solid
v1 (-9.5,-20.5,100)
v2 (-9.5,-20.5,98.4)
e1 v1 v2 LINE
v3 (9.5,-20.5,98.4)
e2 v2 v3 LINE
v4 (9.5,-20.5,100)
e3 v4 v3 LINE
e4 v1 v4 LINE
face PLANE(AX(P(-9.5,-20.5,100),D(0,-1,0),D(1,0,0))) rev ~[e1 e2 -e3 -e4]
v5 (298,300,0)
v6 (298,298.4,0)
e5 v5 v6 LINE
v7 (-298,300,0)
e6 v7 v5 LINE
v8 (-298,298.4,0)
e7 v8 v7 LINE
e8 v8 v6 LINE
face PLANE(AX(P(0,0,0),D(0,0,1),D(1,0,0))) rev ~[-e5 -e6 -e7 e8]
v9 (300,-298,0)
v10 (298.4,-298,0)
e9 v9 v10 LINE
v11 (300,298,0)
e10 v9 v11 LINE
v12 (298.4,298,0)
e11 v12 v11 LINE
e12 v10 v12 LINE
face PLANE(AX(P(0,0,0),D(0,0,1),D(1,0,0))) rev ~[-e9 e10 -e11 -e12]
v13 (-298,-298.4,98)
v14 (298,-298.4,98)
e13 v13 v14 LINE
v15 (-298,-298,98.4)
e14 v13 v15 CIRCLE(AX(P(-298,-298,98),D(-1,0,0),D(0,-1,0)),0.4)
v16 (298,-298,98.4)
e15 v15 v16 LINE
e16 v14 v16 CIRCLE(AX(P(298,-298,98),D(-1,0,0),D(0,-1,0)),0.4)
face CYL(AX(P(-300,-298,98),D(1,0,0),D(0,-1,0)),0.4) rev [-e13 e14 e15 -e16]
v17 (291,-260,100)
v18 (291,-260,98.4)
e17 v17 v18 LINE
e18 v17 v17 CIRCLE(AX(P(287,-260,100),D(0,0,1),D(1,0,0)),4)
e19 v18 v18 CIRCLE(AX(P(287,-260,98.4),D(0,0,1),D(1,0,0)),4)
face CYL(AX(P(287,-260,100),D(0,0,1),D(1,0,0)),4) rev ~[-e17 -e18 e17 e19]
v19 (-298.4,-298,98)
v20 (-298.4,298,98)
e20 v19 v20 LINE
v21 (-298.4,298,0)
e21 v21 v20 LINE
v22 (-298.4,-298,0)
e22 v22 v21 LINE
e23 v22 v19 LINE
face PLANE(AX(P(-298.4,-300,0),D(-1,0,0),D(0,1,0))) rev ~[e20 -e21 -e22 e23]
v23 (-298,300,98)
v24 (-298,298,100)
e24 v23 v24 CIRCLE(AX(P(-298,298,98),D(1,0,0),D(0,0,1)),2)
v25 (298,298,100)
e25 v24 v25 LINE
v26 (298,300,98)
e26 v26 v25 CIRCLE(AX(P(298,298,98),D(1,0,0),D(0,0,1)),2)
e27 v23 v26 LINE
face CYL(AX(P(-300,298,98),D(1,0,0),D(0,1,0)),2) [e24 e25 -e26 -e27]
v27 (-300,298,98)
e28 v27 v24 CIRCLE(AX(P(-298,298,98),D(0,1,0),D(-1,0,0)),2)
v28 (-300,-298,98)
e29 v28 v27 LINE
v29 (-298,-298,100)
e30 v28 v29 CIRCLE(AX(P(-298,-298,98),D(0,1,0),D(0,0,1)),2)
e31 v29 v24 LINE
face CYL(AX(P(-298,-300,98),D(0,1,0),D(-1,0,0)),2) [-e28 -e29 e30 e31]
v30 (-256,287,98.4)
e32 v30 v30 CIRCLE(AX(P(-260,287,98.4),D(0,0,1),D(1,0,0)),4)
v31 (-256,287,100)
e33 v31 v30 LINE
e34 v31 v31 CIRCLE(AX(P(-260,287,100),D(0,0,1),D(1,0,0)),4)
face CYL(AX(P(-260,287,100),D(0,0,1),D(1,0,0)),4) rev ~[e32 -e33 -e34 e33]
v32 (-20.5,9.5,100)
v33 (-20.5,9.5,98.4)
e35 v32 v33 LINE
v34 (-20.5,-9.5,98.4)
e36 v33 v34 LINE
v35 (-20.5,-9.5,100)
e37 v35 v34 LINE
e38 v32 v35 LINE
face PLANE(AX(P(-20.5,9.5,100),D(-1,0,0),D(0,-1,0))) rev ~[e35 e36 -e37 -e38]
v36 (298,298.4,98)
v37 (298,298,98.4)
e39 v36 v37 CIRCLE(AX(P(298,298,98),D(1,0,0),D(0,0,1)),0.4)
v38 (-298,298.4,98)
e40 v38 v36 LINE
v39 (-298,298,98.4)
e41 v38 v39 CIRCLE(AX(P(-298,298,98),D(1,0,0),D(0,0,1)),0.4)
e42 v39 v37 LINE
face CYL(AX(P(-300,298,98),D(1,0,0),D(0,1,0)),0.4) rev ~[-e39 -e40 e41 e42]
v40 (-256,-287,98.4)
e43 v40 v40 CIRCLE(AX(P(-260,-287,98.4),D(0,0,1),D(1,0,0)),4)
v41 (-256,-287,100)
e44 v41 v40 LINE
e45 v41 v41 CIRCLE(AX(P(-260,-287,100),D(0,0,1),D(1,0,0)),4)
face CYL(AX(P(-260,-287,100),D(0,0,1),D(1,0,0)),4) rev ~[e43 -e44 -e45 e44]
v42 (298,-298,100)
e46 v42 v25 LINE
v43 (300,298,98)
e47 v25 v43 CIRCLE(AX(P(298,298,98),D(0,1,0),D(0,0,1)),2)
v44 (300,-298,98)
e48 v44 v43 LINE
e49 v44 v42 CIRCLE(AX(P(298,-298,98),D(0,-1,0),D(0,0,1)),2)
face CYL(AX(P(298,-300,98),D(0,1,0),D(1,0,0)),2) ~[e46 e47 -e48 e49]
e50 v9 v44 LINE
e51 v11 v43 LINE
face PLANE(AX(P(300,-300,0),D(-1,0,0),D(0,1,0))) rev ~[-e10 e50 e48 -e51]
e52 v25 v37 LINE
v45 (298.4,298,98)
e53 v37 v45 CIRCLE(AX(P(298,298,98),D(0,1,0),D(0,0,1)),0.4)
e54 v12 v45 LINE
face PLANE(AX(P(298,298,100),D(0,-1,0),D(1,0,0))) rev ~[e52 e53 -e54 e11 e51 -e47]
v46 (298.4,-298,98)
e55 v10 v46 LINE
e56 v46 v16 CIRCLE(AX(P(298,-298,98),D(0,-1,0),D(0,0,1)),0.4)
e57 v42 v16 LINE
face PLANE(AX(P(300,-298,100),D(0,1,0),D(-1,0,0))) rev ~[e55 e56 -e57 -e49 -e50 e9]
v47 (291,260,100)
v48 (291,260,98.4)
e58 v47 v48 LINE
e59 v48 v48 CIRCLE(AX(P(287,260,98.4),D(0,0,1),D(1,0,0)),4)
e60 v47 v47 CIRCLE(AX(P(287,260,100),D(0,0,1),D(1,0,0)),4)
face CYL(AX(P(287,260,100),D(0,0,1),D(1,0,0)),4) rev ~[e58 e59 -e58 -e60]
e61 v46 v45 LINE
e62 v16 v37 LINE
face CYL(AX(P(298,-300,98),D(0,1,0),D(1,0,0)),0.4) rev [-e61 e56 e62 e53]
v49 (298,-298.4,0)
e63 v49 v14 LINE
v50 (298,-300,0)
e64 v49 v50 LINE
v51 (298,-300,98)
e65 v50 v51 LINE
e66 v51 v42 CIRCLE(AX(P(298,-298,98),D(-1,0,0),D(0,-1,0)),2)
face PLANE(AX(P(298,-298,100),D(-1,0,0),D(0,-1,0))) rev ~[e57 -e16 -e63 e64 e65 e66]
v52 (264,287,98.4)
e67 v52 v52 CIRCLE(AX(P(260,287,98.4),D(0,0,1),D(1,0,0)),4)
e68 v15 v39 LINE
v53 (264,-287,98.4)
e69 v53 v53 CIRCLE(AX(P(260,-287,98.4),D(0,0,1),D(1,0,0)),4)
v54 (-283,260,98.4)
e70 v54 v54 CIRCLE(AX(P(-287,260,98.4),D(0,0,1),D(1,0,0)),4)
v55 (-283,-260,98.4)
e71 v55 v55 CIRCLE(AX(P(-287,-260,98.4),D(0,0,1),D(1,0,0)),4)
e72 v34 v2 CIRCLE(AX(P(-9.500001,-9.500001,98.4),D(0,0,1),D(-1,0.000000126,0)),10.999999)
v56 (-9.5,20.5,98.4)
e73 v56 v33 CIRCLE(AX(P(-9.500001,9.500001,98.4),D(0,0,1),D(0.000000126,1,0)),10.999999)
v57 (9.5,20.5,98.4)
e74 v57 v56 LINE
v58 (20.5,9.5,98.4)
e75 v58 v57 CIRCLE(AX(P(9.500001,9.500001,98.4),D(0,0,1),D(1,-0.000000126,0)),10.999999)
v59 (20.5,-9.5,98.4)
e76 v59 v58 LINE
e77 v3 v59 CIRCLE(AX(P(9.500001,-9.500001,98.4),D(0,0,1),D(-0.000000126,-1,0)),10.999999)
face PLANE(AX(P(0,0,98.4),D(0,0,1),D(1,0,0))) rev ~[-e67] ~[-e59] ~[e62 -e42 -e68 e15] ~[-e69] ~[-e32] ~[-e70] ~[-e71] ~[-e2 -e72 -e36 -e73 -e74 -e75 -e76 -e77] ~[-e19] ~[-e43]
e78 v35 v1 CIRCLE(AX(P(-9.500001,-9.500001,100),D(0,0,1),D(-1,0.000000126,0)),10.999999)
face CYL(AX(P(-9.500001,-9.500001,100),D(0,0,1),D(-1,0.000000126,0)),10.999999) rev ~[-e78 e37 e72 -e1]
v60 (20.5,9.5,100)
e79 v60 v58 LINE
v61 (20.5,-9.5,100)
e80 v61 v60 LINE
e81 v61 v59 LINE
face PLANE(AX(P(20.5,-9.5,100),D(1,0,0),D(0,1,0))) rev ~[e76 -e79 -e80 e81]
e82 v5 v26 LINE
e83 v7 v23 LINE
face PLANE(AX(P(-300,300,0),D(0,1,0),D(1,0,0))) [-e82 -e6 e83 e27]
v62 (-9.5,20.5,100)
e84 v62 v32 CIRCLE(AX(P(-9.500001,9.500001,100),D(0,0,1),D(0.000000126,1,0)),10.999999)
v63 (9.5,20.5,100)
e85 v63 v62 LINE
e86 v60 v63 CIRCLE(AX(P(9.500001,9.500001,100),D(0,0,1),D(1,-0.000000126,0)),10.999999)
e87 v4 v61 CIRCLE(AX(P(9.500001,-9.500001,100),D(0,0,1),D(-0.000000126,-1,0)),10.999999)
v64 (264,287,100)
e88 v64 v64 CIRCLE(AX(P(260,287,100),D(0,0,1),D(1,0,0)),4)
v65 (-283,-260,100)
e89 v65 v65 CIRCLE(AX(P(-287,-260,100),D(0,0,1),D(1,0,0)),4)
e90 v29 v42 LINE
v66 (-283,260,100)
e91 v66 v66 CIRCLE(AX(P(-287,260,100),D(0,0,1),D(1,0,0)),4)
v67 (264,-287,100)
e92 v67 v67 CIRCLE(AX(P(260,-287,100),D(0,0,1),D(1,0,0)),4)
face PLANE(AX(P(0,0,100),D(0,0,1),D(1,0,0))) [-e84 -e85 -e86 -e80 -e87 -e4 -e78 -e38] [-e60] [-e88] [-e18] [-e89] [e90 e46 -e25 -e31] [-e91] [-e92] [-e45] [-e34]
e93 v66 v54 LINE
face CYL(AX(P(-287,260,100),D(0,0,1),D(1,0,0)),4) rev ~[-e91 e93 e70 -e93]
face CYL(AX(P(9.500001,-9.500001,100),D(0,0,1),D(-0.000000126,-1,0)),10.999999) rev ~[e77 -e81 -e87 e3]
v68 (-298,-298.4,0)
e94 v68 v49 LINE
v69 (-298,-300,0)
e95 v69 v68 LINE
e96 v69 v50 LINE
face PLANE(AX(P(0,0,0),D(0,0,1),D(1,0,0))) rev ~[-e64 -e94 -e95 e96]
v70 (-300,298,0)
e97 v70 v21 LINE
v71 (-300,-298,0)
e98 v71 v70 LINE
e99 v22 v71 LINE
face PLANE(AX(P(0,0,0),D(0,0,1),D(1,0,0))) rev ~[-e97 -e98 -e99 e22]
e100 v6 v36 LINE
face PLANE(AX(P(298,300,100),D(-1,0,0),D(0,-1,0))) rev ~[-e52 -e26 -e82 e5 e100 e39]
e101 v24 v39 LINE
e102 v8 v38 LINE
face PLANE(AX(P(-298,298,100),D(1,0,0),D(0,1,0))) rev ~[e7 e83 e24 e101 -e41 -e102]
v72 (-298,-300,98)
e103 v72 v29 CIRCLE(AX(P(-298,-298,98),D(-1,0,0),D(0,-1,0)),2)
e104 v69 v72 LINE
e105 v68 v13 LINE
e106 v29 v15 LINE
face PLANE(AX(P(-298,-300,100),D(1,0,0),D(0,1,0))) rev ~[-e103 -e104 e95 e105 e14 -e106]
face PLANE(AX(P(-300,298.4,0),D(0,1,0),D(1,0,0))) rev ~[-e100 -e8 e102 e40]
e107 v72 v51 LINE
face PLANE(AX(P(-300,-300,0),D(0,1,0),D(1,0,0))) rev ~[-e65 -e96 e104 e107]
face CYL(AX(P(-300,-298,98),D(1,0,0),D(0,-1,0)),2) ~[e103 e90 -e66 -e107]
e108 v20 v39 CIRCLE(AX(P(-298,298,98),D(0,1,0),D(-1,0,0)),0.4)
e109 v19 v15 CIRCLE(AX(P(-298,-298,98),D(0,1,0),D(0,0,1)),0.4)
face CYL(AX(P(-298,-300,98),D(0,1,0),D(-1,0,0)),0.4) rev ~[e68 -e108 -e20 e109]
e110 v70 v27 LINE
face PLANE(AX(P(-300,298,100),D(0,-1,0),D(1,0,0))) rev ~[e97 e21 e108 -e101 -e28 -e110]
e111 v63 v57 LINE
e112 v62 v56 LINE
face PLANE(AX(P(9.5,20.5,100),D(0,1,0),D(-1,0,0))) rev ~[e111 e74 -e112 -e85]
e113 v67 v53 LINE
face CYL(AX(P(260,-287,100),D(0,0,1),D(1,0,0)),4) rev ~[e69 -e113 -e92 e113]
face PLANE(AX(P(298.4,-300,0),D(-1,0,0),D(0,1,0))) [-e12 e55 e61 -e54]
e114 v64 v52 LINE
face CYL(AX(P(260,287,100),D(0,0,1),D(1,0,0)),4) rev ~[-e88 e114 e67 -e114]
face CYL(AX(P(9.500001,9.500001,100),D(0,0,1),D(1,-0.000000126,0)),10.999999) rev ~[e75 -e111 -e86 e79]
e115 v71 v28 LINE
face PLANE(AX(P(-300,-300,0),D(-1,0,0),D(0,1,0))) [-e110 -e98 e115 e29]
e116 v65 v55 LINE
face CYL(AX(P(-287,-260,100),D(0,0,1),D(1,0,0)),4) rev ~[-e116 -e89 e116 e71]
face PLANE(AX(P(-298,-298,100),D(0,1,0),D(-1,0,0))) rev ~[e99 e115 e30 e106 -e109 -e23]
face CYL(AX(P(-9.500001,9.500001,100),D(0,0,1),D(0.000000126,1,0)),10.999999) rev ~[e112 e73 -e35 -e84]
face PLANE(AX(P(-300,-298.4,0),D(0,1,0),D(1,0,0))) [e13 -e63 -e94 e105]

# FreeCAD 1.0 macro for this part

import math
import FreeCAD as App
import Part
import Sketcher


def edges_at(feature, points):
    """Names of the edges that pass closest to the given points."""
    edges = feature.Shape.Edges
    near = lambda p: min(range(len(edges)), key=lambda i: edges[i].distToShape(Part.Vertex(*p))[0])
    return sorted({f"Edge{near(p) + 1}" for p in points})


def faces_at(feature, points):
    """Names of the faces that lie closest to the given points."""
    faces = feature.Shape.Faces
    near = lambda p: min(range(len(faces)), key=lambda i: faces[i].distToShape(Part.Vertex(*p))[0])
    return sorted({f"Face{near(p) + 1}" for p in points})


def add_polygon(sketch, points):
    """Adds a closed chain of lines whose ends are joined by coincident constraints."""
    first, n = sketch.GeometryCount, len(points)
    for a, b in zip(points, points[1:] + points[:1]):
        sketch.addGeometry(Part.LineSegment(App.Vector(*a, 0), App.Vector(*b, 0)), False)
    for i in range(n):
        sketch.addConstraint(Sketcher.Constraint("Coincident", first + i, 2, first + (i + 1) % n, 1))

doc = App.newDocument("Part")
params = doc.addObject("Spreadsheet::Sheet", "Params")
for row, (alias, value) in enumerate([
    ("sketch1_width", "600 mm"),
    ("pad1_length", "100 mm"),
    ("fillet_radius", "2 mm"),
    ("thickness_wall", "1.6 mm"),
    ("sketch2_radius", "1.999999 mm"),
    ("sketch3_radius", "10.999999 mm"),
    ("sketch3_width", "19 mm"),
    ("sketch4_diameter", "8 mm"),
], start=1):
    params.set(f"A{row}", alias)
    params.set(f"B{row}", "=" + value)
    params.setAlias(f"B{row}", alias)

body = doc.addObject("PartDesign::Body", "Body")

# Sketch on XY plane
sketch1 = body.newObject("Sketcher::SketchObject", "Sketch")
sketch1.AttachmentSupport = (doc.getObject("XY_Plane"), [""])
sketch1.MapMode = "FlatFace"
add_polygon(sketch1, [(-300, 300), (-300, -300), (300, -300), (300, 300)])  # lines 0-3
sketch1.addConstraint([
    Sketcher.Constraint("Vertical", 0),
    Sketcher.Constraint("Horizontal", 1),
    Sketcher.Constraint("Vertical", 2),
    Sketcher.Constraint("Horizontal", 3),
    Sketcher.Constraint("Symmetric", 0, 2, 2, 2, -1, 1),
    Sketcher.Constraint("Equal", 3, 0),
    Sketcher.Constraint("DistanceX", 1, 1, 1, 2, 600.0),
])
sketch1.setExpression("Constraints[10]", "Params.sketch1_width")
pad1 = body.newObject("PartDesign::Pad", "Pad")
pad1.Profile = sketch1
pad1.setExpression("Length", "Params.pad1_length")
doc.recompute()

fillet = body.newObject("PartDesign::Fillet", "Fillet")
fillet.Base = (pad1, edges_at(pad1, [
    (0, -300, 100),
    (-300, -300, 50),
    (-300, 0, 100),
    (300, -300, 50),
    (-300, 300, 50),
    (300, 0, 100),
    (0, 300, 100),
    (300, 300, 50),
]))
fillet.setExpression("Radius", "Params.fillet_radius")
doc.recompute()

thickness = body.newObject("PartDesign::Thickness", "Thickness")
thickness.Base = (fillet, faces_at(fillet, [(0, 0, 0)]))
thickness.setExpression("Value", "Params.thickness_wall")
thickness.Reversed = True
thickness.Join = "Arc"

# Sketch on XY plane
sketch2 = body.newObject("Sketcher::SketchObject", "Sketch001")
sketch2.AttachmentSupport = (doc.getObject("XY_Plane"), [""])
sketch2.MapMode = "FlatFace"
sketch2.AttachmentOffset = App.Placement(App.Vector(0, 0, 100), App.Rotation())
sketch2.addGeometry([
    Part.LineSegment(App.Vector(298, 300, 0), App.Vector(298, 298, 0)),  # 0
    Part.LineSegment(App.Vector(298, 298, 0), App.Vector(300, 298, 0)),  # 1
    Part.ArcOfCircle(Part.Circle(App.Vector(298, 298, 0), App.Vector(0, 0, 1), 2), math.radians(0), math.radians(90)),  # 2
    Part.LineSegment(App.Vector(298, -298, 0), App.Vector(298, -300, 0)),  # 3
    Part.ArcOfCircle(Part.Circle(App.Vector(298, -298, 0), App.Vector(0, 0, 1), 2), math.radians(-90), math.radians(0)),  # 4
    Part.LineSegment(App.Vector(300, -298, 0), App.Vector(298, -298, 0)),  # 5
    Part.LineSegment(App.Vector(-300, 298, 0), App.Vector(-298, 298, 0)),  # 6
    Part.LineSegment(App.Vector(-298, 298, 0), App.Vector(-298, 300, 0)),  # 7
    Part.ArcOfCircle(Part.Circle(App.Vector(-298, 298, 0), App.Vector(0, 0, 1), 2), math.radians(90), math.radians(180)),  # 8
    Part.ArcOfCircle(Part.Circle(App.Vector(-298, -298, 0), App.Vector(0, 0, 1), 2), math.radians(180), math.radians(270)),  # 9
    Part.LineSegment(App.Vector(-298, -300, 0), App.Vector(-298, -298, 0)),  # 10
    Part.LineSegment(App.Vector(-298, -298, 0), App.Vector(-300, -298, 0)),  # 11
], False)
sketch2.addConstraint([
    Sketcher.Constraint("Coincident", 0, 2, 1, 1),
    Sketcher.Constraint("Coincident", 1, 2, 2, 1),
    Sketcher.Constraint("Coincident", 2, 2, 0, 1),
    Sketcher.Constraint("Coincident", 3, 2, 4, 1),
    Sketcher.Constraint("Coincident", 4, 2, 5, 1),
    Sketcher.Constraint("Coincident", 5, 2, 3, 1),
    Sketcher.Constraint("Coincident", 6, 2, 7, 1),
    Sketcher.Constraint("Coincident", 7, 2, 8, 1),
    Sketcher.Constraint("Coincident", 8, 2, 6, 1),
    Sketcher.Constraint("Coincident", 9, 2, 10, 1),
    Sketcher.Constraint("Coincident", 10, 2, 11, 1),
    Sketcher.Constraint("Coincident", 11, 2, 9, 1),
    Sketcher.Constraint("Vertical", 0),
    Sketcher.Constraint("Horizontal", 1),
    Sketcher.Constraint("Vertical", 3),
    Sketcher.Constraint("Horizontal", 5),
    Sketcher.Constraint("Horizontal", 6),
    Sketcher.Constraint("Vertical", 7),
    Sketcher.Constraint("Vertical", 10),
    Sketcher.Constraint("Horizontal", 11),
    Sketcher.Constraint("Coincident", 0, 2, 2, 3),
    Sketcher.Constraint("Coincident", 5, 2, 4, 3),
    Sketcher.Constraint("Coincident", 6, 2, 8, 3),
    Sketcher.Constraint("Coincident", 10, 2, 9, 3),
    Sketcher.Constraint("Equal", 2, 4),
    Sketcher.Constraint("Equal", 4, 8),
    Sketcher.Constraint("Equal", 8, 9),
    Sketcher.Constraint("Symmetric", 4, 3, 8, 3, -1, 1),
    Sketcher.Constraint("Symmetric", 2, 3, 9, 3, -1, 1),
    Sketcher.Constraint("Symmetric", 2, 3, 8, 3, -2),
    Sketcher.Constraint("Radius", 2, 1.999999),
    Sketcher.Constraint("DistanceX", -1, 1, 2, 3, 298.000001),
    Sketcher.Constraint("DistanceY", -1, 1, 2, 3, 298.000001),
])
sketch2.setExpression("Constraints[30]", "Params.sketch2_radius")
pocket1 = body.newObject("PartDesign::Pocket", "Pocket")
pocket1.Profile = sketch2
pocket1.Type = "ThroughAll"

# Sketch on XY plane
sketch3 = body.newObject("Sketcher::SketchObject", "Sketch002")
sketch3.AttachmentSupport = (doc.getObject("XY_Plane"), [""])
sketch3.MapMode = "FlatFace"
sketch3.AttachmentOffset = App.Placement(App.Vector(0, 0, 100), App.Rotation())
sketch3.addGeometry([
    Part.ArcOfCircle(Part.Circle(App.Vector(-10, -10, 0), App.Vector(0, 0, 1), 11), math.radians(180), math.radians(270)),  # 0
    Part.LineSegment(App.Vector(-10, -20, 0), App.Vector(10, -20, 0)),  # 1
    Part.ArcOfCircle(Part.Circle(App.Vector(10, -10, 0), App.Vector(0, 0, 1), 11), math.radians(-90), math.radians(0)),  # 2
    Part.LineSegment(App.Vector(20, -10, 0), App.Vector(20, 10, 0)),  # 3
    Part.ArcOfCircle(Part.Circle(App.Vector(10, 10, 0), App.Vector(0, 0, 1), 11), math.radians(0), math.radians(90)),  # 4
    Part.LineSegment(App.Vector(10, 20, 0), App.Vector(-10, 20, 0)),  # 5
    Part.ArcOfCircle(Part.Circle(App.Vector(-10, 10, 0), App.Vector(0, 0, 1), 11), math.radians(90), math.radians(180)),  # 6
    Part.LineSegment(App.Vector(-20, 10, 0), App.Vector(-20, -10, 0)),  # 7
], False)
sketch3.addConstraint([
    Sketcher.Constraint("Tangent", 0, 2, 1, 1),
    Sketcher.Constraint("Tangent", 1, 2, 2, 1),
    Sketcher.Constraint("Tangent", 2, 2, 3, 1),
    Sketcher.Constraint("Tangent", 3, 2, 4, 1),
    Sketcher.Constraint("Tangent", 4, 2, 5, 1),
    Sketcher.Constraint("Tangent", 5, 2, 6, 1),
    Sketcher.Constraint("Tangent", 6, 2, 7, 1),
    Sketcher.Constraint("Tangent", 7, 2, 0, 1),
    Sketcher.Constraint("Horizontal", 1),
    Sketcher.Constraint("Vertical", 3),
    Sketcher.Constraint("Horizontal", 5),
    Sketcher.Constraint("Vertical", 7),
    Sketcher.Constraint("Equal", 0, 2),
    Sketcher.Constraint("Equal", 2, 4),
    Sketcher.Constraint("Equal", 4, 6),
    Sketcher.Constraint("Symmetric", 0, 3, 4, 3, -1, 1),
    Sketcher.Constraint("Equal", 5, 3),
    Sketcher.Constraint("Radius", 0, 10.999999),
    Sketcher.Constraint("DistanceX", 1, 1, 1, 2, 19.0),
])
sketch3.setExpression("Constraints[17]", "Params.sketch3_radius")
sketch3.setExpression("Constraints[18]", "Params.sketch3_width")
pocket2 = body.newObject("PartDesign::Pocket", "Pocket001")
pocket2.Profile = sketch3
pocket2.Type = "ThroughAll"

# Sketch on XY plane
sketch4 = body.newObject("Sketcher::SketchObject", "Sketch003")
sketch4.AttachmentSupport = (doc.getObject("XY_Plane"), [""])
sketch4.MapMode = "FlatFace"
sketch4.AttachmentOffset = App.Placement(App.Vector(0, 0, 100), App.Rotation())
sketch4.addGeometry([
    Part.Circle(App.Vector(260, 287, 0), App.Vector(0, 0, 1), 4),  # 0
    Part.Circle(App.Vector(-260, 287, 0), App.Vector(0, 0, 1), 4),  # 1
    Part.Circle(App.Vector(-287, -260, 0), App.Vector(0, 0, 1), 4),  # 2
    Part.Circle(App.Vector(-287, 260, 0), App.Vector(0, 0, 1), 4),  # 3
    Part.Circle(App.Vector(260, -287, 0), App.Vector(0, 0, 1), 4),  # 4
    Part.Circle(App.Vector(-260, -287, 0), App.Vector(0, 0, 1), 4),  # 5
    Part.Circle(App.Vector(287, 260, 0), App.Vector(0, 0, 1), 4),  # 6
    Part.Circle(App.Vector(287, -260, 0), App.Vector(0, 0, 1), 4),  # 7
], False)
sketch4.addConstraint([
    Sketcher.Constraint("Equal", 0, 1),
    Sketcher.Constraint("Equal", 1, 2),
    Sketcher.Constraint("Equal", 2, 3),
    Sketcher.Constraint("Equal", 3, 4),
    Sketcher.Constraint("Equal", 4, 5),
    Sketcher.Constraint("Equal", 5, 6),
    Sketcher.Constraint("Equal", 6, 7),
    Sketcher.Constraint("Symmetric", 1, 3, 4, 3, -1, 1),
    Sketcher.Constraint("Symmetric", 0, 3, 5, 3, -1, 1),
    Sketcher.Constraint("Symmetric", 2, 3, 6, 3, -1, 1),
    Sketcher.Constraint("Symmetric", 3, 3, 7, 3, -1, 1),
    Sketcher.Constraint("Symmetric", 0, 3, 1, 3, -2),
    Sketcher.Constraint("Symmetric", 3, 3, 6, 3, -2),
    Sketcher.Constraint("Diameter", 0, 8.0),
    Sketcher.Constraint("DistanceX", -1, 1, 0, 3, 260.0),
    Sketcher.Constraint("DistanceY", -1, 1, 0, 3, 287.0),
    Sketcher.Constraint("DistanceX", 2, 3, -1, 1, 287.0),
    Sketcher.Constraint("DistanceY", 2, 3, -1, 1, 260.0),
])
sketch4.setExpression("Constraints[13]", "Params.sketch4_diameter")
pocket3 = body.newObject("PartDesign::Pocket", "Pocket002")
pocket3.Profile = sketch4
pocket3.Type = "ThroughAll"

doc.recompute()
